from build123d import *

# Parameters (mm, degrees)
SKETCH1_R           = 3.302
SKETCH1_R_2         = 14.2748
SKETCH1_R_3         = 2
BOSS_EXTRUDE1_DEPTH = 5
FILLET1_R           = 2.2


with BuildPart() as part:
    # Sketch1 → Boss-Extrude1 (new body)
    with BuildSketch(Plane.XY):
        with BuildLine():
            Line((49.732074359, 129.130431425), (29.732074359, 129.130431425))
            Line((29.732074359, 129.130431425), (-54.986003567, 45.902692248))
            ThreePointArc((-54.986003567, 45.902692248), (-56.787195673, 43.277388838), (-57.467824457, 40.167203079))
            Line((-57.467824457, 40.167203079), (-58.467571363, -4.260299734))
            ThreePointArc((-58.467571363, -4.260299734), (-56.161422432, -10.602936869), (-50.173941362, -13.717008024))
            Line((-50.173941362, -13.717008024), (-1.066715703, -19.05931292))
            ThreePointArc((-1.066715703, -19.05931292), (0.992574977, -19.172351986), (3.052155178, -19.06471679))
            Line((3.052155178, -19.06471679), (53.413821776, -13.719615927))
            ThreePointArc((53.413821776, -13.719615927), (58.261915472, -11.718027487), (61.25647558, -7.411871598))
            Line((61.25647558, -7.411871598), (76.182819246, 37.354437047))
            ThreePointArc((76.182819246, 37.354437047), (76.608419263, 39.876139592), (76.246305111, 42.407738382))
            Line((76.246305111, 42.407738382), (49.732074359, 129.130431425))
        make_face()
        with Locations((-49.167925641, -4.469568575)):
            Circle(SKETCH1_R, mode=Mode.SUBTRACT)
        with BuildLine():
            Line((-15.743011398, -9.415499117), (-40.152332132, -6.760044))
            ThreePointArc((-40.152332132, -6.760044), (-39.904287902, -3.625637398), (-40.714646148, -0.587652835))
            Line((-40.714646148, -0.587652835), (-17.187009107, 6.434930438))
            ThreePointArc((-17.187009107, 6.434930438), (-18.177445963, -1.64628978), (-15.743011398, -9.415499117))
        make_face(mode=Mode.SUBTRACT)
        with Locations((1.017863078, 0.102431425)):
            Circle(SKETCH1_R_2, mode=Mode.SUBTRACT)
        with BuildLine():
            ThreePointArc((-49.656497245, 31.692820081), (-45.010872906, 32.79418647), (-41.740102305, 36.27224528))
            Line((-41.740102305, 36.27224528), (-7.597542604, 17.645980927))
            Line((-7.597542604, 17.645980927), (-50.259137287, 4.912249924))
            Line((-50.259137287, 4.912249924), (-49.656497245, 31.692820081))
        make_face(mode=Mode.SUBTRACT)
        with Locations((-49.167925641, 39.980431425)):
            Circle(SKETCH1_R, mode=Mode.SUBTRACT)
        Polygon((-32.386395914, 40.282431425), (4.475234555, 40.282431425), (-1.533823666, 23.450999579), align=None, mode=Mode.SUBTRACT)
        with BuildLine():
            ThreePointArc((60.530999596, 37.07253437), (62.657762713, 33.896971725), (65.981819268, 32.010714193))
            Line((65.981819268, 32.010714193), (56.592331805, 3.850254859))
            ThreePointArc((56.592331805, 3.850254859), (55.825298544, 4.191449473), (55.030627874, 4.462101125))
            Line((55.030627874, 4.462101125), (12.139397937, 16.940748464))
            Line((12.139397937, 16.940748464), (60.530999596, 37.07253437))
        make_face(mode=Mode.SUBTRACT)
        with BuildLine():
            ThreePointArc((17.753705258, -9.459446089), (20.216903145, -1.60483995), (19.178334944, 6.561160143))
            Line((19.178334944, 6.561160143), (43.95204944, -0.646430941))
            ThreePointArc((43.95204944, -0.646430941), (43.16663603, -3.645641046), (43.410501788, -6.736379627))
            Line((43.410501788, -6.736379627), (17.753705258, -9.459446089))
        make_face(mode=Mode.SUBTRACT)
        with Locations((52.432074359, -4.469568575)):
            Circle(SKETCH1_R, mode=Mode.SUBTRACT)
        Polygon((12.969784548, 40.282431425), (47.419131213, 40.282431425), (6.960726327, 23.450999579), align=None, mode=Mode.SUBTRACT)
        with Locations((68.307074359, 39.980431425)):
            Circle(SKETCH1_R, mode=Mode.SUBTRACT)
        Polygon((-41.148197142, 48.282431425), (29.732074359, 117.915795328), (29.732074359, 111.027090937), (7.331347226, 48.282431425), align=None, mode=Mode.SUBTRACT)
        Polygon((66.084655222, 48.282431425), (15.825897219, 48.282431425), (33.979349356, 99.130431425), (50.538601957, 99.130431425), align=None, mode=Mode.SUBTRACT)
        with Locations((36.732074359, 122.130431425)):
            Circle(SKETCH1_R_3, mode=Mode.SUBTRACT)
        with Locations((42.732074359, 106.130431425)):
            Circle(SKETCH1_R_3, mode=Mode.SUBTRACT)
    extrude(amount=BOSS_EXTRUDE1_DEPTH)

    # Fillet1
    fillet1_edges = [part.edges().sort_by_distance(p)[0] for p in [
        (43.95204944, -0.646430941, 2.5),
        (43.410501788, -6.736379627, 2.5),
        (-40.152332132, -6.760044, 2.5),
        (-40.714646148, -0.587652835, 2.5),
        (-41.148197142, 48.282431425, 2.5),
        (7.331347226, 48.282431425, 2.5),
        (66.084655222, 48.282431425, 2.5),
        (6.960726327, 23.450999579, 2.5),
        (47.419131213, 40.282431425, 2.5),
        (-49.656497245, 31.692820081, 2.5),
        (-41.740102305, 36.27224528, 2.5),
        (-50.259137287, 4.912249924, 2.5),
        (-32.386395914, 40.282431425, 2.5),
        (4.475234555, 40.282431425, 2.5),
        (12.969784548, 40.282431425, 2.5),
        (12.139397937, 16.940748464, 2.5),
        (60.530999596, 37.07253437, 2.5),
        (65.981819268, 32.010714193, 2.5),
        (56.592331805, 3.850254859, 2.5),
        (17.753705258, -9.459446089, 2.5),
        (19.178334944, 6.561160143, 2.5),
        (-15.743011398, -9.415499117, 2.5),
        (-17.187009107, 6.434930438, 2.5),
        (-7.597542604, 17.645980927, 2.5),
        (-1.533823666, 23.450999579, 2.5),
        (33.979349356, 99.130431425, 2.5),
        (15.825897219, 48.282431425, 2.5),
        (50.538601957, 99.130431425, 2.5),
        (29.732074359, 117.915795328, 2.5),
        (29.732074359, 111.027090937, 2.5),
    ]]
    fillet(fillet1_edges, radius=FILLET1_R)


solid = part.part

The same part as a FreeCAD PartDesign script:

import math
import FreeCAD as App
import Part
import Sketcher
Q = App.Units.Quantity


def edges_at(feature, points):
    """Names of the edges that pass closest to the given points."""
    edges = feature.Shape.Edges
    near = lambda p: min(range(len(edges)), key=lambda i: edges[i].distToShape(Part.Vertex(*p))[0])
    return sorted({f"Edge{near(p) + 1}" for p in points})

doc = App.newDocument("Part")
body = doc.addObject("PartDesign::Body", "Body")

sketch1 = body.newObject("Sketcher::SketchObject", "Sketch")
sketch1.AttachmentSupport = (doc.getObject("XY_Plane"), [""])
sketch1.MapMode = "FlatFace"
sketch1.addGeometry(Part.LineSegment(App.Vector(49.732074, 129.130431, 0), App.Vector(29.732074, 129.130431, 0)), False)
sketch1.addGeometry(Part.LineSegment(App.Vector(29.732074, 129.130431, 0), App.Vector(-54.986004, 45.902692, 0)), False)
sketch1.addGeometry(Part.ArcOfCircle(Part.Circle(App.Vector(-49.167926, 39.980431, 0), App.Vector(0, 0, 1), 8.302), math.radians(134.491575), math.radians(178.710897)), False)
sketch1.addGeometry(Part.LineSegment(App.Vector(-57.467824, 40.167203, 0), App.Vector(-58.467571, -4.2603, 0)), False)
sketch1.addGeometry(Part.ArcOfCircle(Part.Circle(App.Vector(-49.167926, -4.469569, 0), App.Vector(0, 0, 1), 9.302), math.radians(178.710897), math.radians(263.79129)), False)
sketch1.addGeometry(Part.LineSegment(App.Vector(-50.173941, -13.717008, 0), App.Vector(-1.066716, -19.059313, 0)), False)
sketch1.addGeometry(Part.ArcOfCircle(Part.Circle(App.Vector(1.017863, 0.102431, 0), App.Vector(0, 0, 1), 19.2748), math.radians(-96.20871), math.radians(-83.941632)), False)
sketch1.addGeometry(Part.LineSegment(App.Vector(3.052155, -19.064717, 0), App.Vector(53.413822, -13.719616, 0)), False)
sketch1.addGeometry(Part.ArcOfCircle(Part.Circle(App.Vector(52.432074, -4.469569, 0), App.Vector(0, 0, 1), 9.302), math.radians(-83.941632), math.radians(-18.439834)), False)
sketch1.addGeometry(Part.LineSegment(App.Vector(61.256476, -7.411872, 0), App.Vector(76.182819, 37.354437, 0)), False)
sketch1.addGeometry(Part.ArcOfCircle(Part.Circle(App.Vector(68.307074, 39.980431, 0), App.Vector(0, 0, 1), 8.302), math.radians(-18.439834), math.radians(17.000267)), False)
sketch1.addGeometry(Part.LineSegment(App.Vector(76.246305, 42.407738, 0), App.Vector(49.732074, 129.130431, 0)), False)
sketch1.addGeometry(Part.Circle(App.Vector(-49.167926, -4.469569, 0), App.Vector(0, 0, 1), 3.302), False)
sketch1.addGeometry(Part.ArcOfCircle(Part.Circle(App.Vector(1.017863, 0.102431, 0), App.Vector(0, 0, 1), 19.2748), math.radians(160.819954), math.radians(209.590769)), False)
sketch1.addGeometry(Part.LineSegment(App.Vector(-15.743011, -9.415499, 0), App.Vector(-40.152332, -6.760044, 0)), False)
sketch1.addGeometry(Part.ArcOfCircle(Part.Circle(App.Vector(-49.167926, -4.469569, 0), App.Vector(0, 0, 1), 9.302), math.radians(-14.254814), math.radians(24.665538)), False)
sketch1.addGeometry(Part.LineSegment(App.Vector(-40.714646, -0.587653, 0), App.Vector(-17.187009, 6.43493, 0)), False)
sketch1.addGeometry(Part.Circle(App.Vector(1.017863, 0.102431, 0), App.Vector(0, 0, 1), 14.2748), False)
sketch1.addGeometry(Part.LineSegment(App.Vector(-50.259137, 4.91225, 0), App.Vector(-49.656497, 31.69282, 0)), False)
sketch1.addGeometry(Part.ArcOfCircle(Part.Circle(App.Vector(-49.167926, 39.980431, 0), App.Vector(0, 0, 1), 8.302), math.radians(-93.373798), math.radians(-26.529708)), False)
sketch1.addGeometry(Part.LineSegment(App.Vector(-41.740102, 36.272245, 0), App.Vector(-7.597543, 17.645981, 0)), False)
sketch1.addGeometry(Part.LineSegment(App.Vector(-7.597543, 17.645981, 0), App.Vector(-50.259137, 4.91225, 0)), False)
sketch1.addGeometry(Part.Circle(App.Vector(-49.167926, 39.980431, 0), App.Vector(0, 0, 1), 3.302), False)
sketch1.addGeometry(Part.LineSegment(App.Vector(-1.533824, 23.451, 0), App.Vector(-32.386396, 40.282431, 0)), False)
sketch1.addGeometry(Part.LineSegment(App.Vector(-32.386396, 40.282431, 0), App.Vector(4.475235, 40.282431, 0)), False)
sketch1.addGeometry(Part.LineSegment(App.Vector(4.475235, 40.282431, 0), App.Vector(-1.533824, 23.451, 0)), False)
sketch1.addGeometry(Part.LineSegment(App.Vector(43.410502, -6.73638, 0), App.Vector(17.753705, -9.459446, 0)), False)
sketch1.addGeometry(Part.ArcOfCircle(Part.Circle(App.Vector(1.017863, 0.102431, 0), App.Vector(0, 0, 1), 19.2748), math.radians(-29.741111), math.radians(19.577809)), False)
sketch1.addGeometry(Part.LineSegment(App.Vector(19.178335, 6.56116, 0), App.Vector(43.952049, -0.646431, 0)), False)
sketch1.addGeometry(Part.ArcOfCircle(Part.Circle(App.Vector(52.432074, -4.469569, 0), App.Vector(0, 0, 1), 9.302), math.radians(155.732226), math.radians(194.104472)), False)
sketch1.addGeometry(Part.Circle(App.Vector(52.432074, -4.469569, 0), App.Vector(0, 0, 1), 3.302), False)
sketch1.addGeometry(Part.LineSegment(App.Vector(12.139398, 16.940748, 0), App.Vector(60.531, 37.072534, 0)), False)
sketch1.addGeometry(Part.ArcOfCircle(Part.Circle(App.Vector(68.307074, 39.980431, 0), App.Vector(0, 0, 1), 8.302), math.radians(-159.496497), math.radians(-106.265202)), False)
sketch1.addGeometry(Part.LineSegment(App.Vector(65.981819, 32.010714, 0), App.Vector(56.592332, 3.850255, 0)), False)
sketch1.addGeometry(Part.ArcOfCircle(Part.Circle(App.Vector(52.432074, -4.469569, 0), App.Vector(0, 0, 1), 9.302), math.radians(63.433044), math.radians(73.77833)), False)
sketch1.addGeometry(Part.LineSegment(App.Vector(55.030628, 4.462101, 0), App.Vector(12.139398, 16.940748, 0)), False)
sketch1.addGeometry(Part.LineSegment(App.Vector(6.960726, 23.451, 0), App.Vector(12.969785, 40.282431, 0)), False)
sketch1.addGeometry(Part.LineSegment(App.Vector(12.969785, 40.282431, 0), App.Vector(47.419131, 40.282431, 0)), False)
sketch1.addGeometry(Part.LineSegment(App.Vector(47.419131, 40.282431, 0), App.Vector(6.960726, 23.451, 0)), False)
sketch1.addGeometry(Part.Circle(App.Vector(68.307074, 39.980431, 0), App.Vector(0, 0, 1), 3.302), False)
sketch1.addGeometry(Part.LineSegment(App.Vector(7.331347, 48.282431, 0), App.Vector(-41.148197, 48.282431, 0)), False)
sketch1.addGeometry(Part.LineSegment(App.Vector(-41.148197, 48.282431, 0), App.Vector(29.732074, 117.915795, 0)), False)
sketch1.addGeometry(Part.LineSegment(App.Vector(29.732074, 117.915795, 0), App.Vector(29.732074, 111.027091, 0)), False)
sketch1.addGeometry(Part.LineSegment(App.Vector(29.732074, 111.027091, 0), App.Vector(7.331347, 48.282431, 0)), False)
sketch1.addGeometry(Part.LineSegment(App.Vector(50.538602, 99.130431, 0), App.Vector(66.084655, 48.282431, 0)), False)
sketch1.addGeometry(Part.LineSegment(App.Vector(66.084655, 48.282431, 0), App.Vector(15.825897, 48.282431, 0)), False)
sketch1.addGeometry(Part.LineSegment(App.Vector(15.825897, 48.282431, 0), App.Vector(33.979349, 99.130431, 0)), False)
sketch1.addGeometry(Part.LineSegment(App.Vector(33.979349, 99.130431, 0), App.Vector(50.538602, 99.130431, 0)), False)
sketch1.addGeometry(Part.Circle(App.Vector(36.732074, 122.130431, 0), App.Vector(0, 0, 1), 2), False)
sketch1.addGeometry(Part.Circle(App.Vector(42.732074, 106.130431, 0), App.Vector(0, 0, 1), 2), False)
sketch1.addConstraint(Sketcher.Constraint("Coincident", 0, 2, 1, 1))
sketch1.addConstraint(Sketcher.Constraint("Tangent", 1, 2, 2, 1))
sketch1.addConstraint(Sketcher.Constraint("Tangent", 2, 2, 3, 1))
sketch1.addConstraint(Sketcher.Constraint("Tangent", 3, 2, 4, 1))
sketch1.addConstraint(Sketcher.Constraint("Tangent", 4, 2, 5, 1))
sketch1.addConstraint(Sketcher.Constraint("Tangent", 5, 2, 6, 1))
sketch1.addConstraint(Sketcher.Constraint("Tangent", 6, 2, 7, 1))
sketch1.addConstraint(Sketcher.Constraint("Tangent", 7, 2, 8, 1))
sketch1.addConstraint(Sketcher.Constraint("Tangent", 8, 2, 9, 1))
sketch1.addConstraint(Sketcher.Constraint("Tangent", 9, 2, 10, 1))
sketch1.addConstraint(Sketcher.Constraint("Tangent", 10, 2, 11, 1))
sketch1.addConstraint(Sketcher.Constraint("Coincident", 11, 2, 0, 1))
sketch1.addConstraint(Sketcher.Constraint("Coincident", 13, 2, 14, 1))
sketch1.addConstraint(Sketcher.Constraint("Coincident", 14, 2, 15, 1))
sketch1.addConstraint(Sketcher.Constraint("Coincident", 15, 2, 16, 1))
sketch1.addConstraint(Sketcher.Constraint("Coincident", 16, 2, 13, 1))
sketch1.addConstraint(Sketcher.Constraint("Coincident", 18, 2, 19, 1))
sketch1.addConstraint(Sketcher.Constraint("Coincident", 19, 2, 20, 1))
sketch1.addConstraint(Sketcher.Constraint("Coincident", 20, 2, 21, 1))
sketch1.addConstraint(Sketcher.Constraint("Coincident", 21, 2, 18, 1))
sketch1.addConstraint(Sketcher.Constraint("Coincident", 23, 2, 24, 1))
sketch1.addConstraint(Sketcher.Constraint("Coincident", 24, 2, 25, 1))
sketch1.addConstraint(Sketcher.Constraint("Coincident", 25, 2, 23, 1))
sketch1.addConstraint(Sketcher.Constraint("Coincident", 26, 2, 27, 1))
sketch1.addConstraint(Sketcher.Constraint("Coincident", 27, 2, 28, 1))
sketch1.addConstraint(Sketcher.Constraint("Coincident", 28, 2, 29, 1))
sketch1.addConstraint(Sketcher.Constraint("Coincident", 29, 2, 26, 1))
sketch1.addConstraint(Sketcher.Constraint("Coincident", 31, 2, 32, 1))
sketch1.addConstraint(Sketcher.Constraint("Coincident", 32, 2, 33, 1))
sketch1.addConstraint(Sketcher.Constraint("Coincident", 33, 2, 34, 1))
sketch1.addConstraint(Sketcher.Constraint("Tangent", 34, 2, 35, 1))
sketch1.addConstraint(Sketcher.Constraint("Coincident", 35, 2, 31, 1))
sketch1.addConstraint(Sketcher.Constraint("Coincident", 36, 2, 37, 1))
sketch1.addConstraint(Sketcher.Constraint("Coincident", 37, 2, 38, 1))
sketch1.addConstraint(Sketcher.Constraint("Coincident", 38, 2, 36, 1))
sketch1.addConstraint(Sketcher.Constraint("Coincident", 40, 2, 41, 1))
sketch1.addConstraint(Sketcher.Constraint("Coincident", 41, 2, 42, 1))
sketch1.addConstraint(Sketcher.Constraint("Coincident", 42, 2, 43, 1))
sketch1.addConstraint(Sketcher.Constraint("Coincident", 43, 2, 40, 1))
sketch1.addConstraint(Sketcher.Constraint("Coincident", 44, 2, 45, 1))
sketch1.addConstraint(Sketcher.Constraint("Coincident", 45, 2, 46, 1))
sketch1.addConstraint(Sketcher.Constraint("Coincident", 46, 2, 47, 1))
sketch1.addConstraint(Sketcher.Constraint("Coincident", 47, 2, 44, 1))
sketch1.addConstraint(Sketcher.Constraint("Horizontal", 0))
sketch1.addConstraint(Sketcher.Constraint("Horizontal", 24))
sketch1.addConstraint(Sketcher.Constraint("Horizontal", 37))
sketch1.addConstraint(Sketcher.Constraint("Horizontal", 40))
sketch1.addConstraint(Sketcher.Constraint("Vertical", 42))
sketch1.addConstraint(Sketcher.Constraint("Horizontal", 45))
sketch1.addConstraint(Sketcher.Constraint("Horizontal", 47))
sketch1.addConstraint(Sketcher.Constraint("Coincident", 12, 3, 4, 3))
sketch1.addConstraint(Sketcher.Constraint("Coincident", 13, 3, 6, 3))
sketch1.addConstraint(Sketcher.Constraint("Coincident", 15, 3, 4, 3))
sketch1.addConstraint(Sketcher.Constraint("Coincident", 17, 3, 6, 3))
sketch1.addConstraint(Sketcher.Constraint("Coincident", 19, 3, 2, 3))
sketch1.addConstraint(Sketcher.Constraint("Coincident", 22, 3, 2, 3))
sketch1.addConstraint(Sketcher.Constraint("Coincident", 27, 3, 6, 3))
sketch1.addConstraint(Sketcher.Constraint("Coincident", 29, 3, 8, 3))
sketch1.addConstraint(Sketcher.Constraint("Coincident", 30, 3, 8, 3))
sketch1.addConstraint(Sketcher.Constraint("Coincident", 32, 3, 10, 3))
sketch1.addConstraint(Sketcher.Constraint("Coincident", 34, 3, 8, 3))
sketch1.addConstraint(Sketcher.Constraint("Coincident", 39, 3, 10, 3))
sketch1.addConstraint(Sketcher.Constraint("Equal", 4, 8))
sketch1.addConstraint(Sketcher.Constraint("Equal", 2, 10))
sketch1.addConstraint(Sketcher.Constraint("Equal", 6, 13))
sketch1.addConstraint(Sketcher.Constraint("Equal", 8, 15))
sketch1.addConstraint(Sketcher.Constraint("Equal", 10, 19))
sketch1.addConstraint(Sketcher.Constraint("Equal", 12, 22))
sketch1.addConstraint(Sketcher.Constraint("Equal", 13, 27))
sketch1.addConstraint(Sketcher.Constraint("Equal", 15, 29))
sketch1.addConstraint(Sketcher.Constraint("Equal", 22, 30))
sketch1.addConstraint(Sketcher.Constraint("Equal", 19, 32))
sketch1.addConstraint(Sketcher.Constraint("Equal", 29, 34))
sketch1.addConstraint(Sketcher.Constraint("Equal", 30, 39))
sketch1.addConstraint(Sketcher.Constraint("Equal", 48, 49))
sketch1.addConstraint(Sketcher.Constraint("Parallel", 5, 14))
sketch1.addConstraint(Sketcher.Constraint("Parallel", 3, 18))
sketch1.addConstraint(Sketcher.Constraint("Parallel", 16, 21))
sketch1.addConstraint(Sketcher.Constraint("Parallel", 20, 23))
sketch1.addConstraint(Sketcher.Constraint("Parallel", 7, 26))
sketch1.addConstraint(Sketcher.Constraint("Parallel", 9, 33))
sketch1.addConstraint(Sketcher.Constraint("Parallel", 28, 35))
sketch1.addConstraint(Sketcher.Constraint("Parallel", 25, 36))
sketch1.addConstraint(Sketcher.Constraint("Parallel", 31, 38))
sketch1.addConstraint(Sketcher.Constraint("Parallel", 1, 41))
sketch1.addConstraint(Sketcher.Constraint("Parallel", 36, 43))
sketch1.addConstraint(Sketcher.Constraint("Parallel", 11, 44))
sketch1.addConstraint(Sketcher.Constraint("Parallel", 43, 46))
sketch1.addConstraint(Sketcher.Constraint("Horizontal", 4, 3, 8, 3))
sketch1.addConstraint(Sketcher.Constraint("Horizontal", 2, 3, 10, 3))
sketch1.addConstraint(Sketcher.Constraint("Horizontal", 24, 2, 36, 2))
sketch1.addConstraint(Sketcher.Constraint("Horizontal", 25, 2, 38, 2))
sketch1.addConstraint(Sketcher.Constraint("Horizontal", 43, 2, 44, 2))
sketch1.addConstraint(Sketcher.Constraint("Vertical", 2, 3, 4, 3))
sketch1.addConstraint(Sketcher.Constraint("Vertical", 0, 2, 41, 2))
sketch1.addConstraint(Sketcher.Constraint("Equal", 14, 16))
sketch1.addConstraint(Sketcher.Constraint("Equal", 26, 28))
sketch1.addConstraint(Sketcher.Constraint("Diameter", 48, Q("4 mm")))
sketch1.addConstraint(Sketcher.Constraint("DistanceX", 0, 2, 0, 1, Q("20 mm")))
sketch1.addConstraint(Sketcher.Constraint("Diameter", 12, Q("6.604 mm")))
sketch1.addConstraint(Sketcher.Constraint("Radius", 2, Q("8.302 mm")))
sketch1.addConstraint(Sketcher.Constraint("Radius", 4, Q("9.302 mm")))
sketch1.addConstraint(Sketcher.Constraint("Diameter", 17, Q("28.5496 mm")))
sketch1.addConstraint(Sketcher.Constraint("Radius", 6, Q("19.2748 mm")))
sketch1.addConstraint(Sketcher.Constraint("DistanceY", -1, 1, 25, 2, Q("23.451 mm")))
sketch1.addConstraint(Sketcher.Constraint("DistanceX", -1, 1, 31, 2, Q("60.531 mm")))
sketch1.addConstraint(Sketcher.Constraint("Distance", 1, Q("118.760302 mm")))
sketch1.addConstraint(Sketcher.Constraint("DistanceX", 24, 1, 24, 2, Q("36.86163 mm")))
sketch1.addConstraint(Sketcher.Constraint("DistanceX", 45, 2, 45, 1, Q("50.258758 mm")))
sketch1.addConstraint(Sketcher.Constraint("DistanceY", 3, 2, -1, 1, Q("4.2603 mm")))
sketch1.addConstraint(Sketcher.Constraint("DistanceY", 13, 2, -1, 1, Q("9.415499 mm")))
sketch1.addConstraint(Sketcher.Constraint("DistanceX", -1, 1, 29, 2, Q("43.410502 mm")))
sketch1.addConstraint(Sketcher.Constraint("DistanceY", -1, 1, 34, 2, Q("4.462101 mm")))
sketch1.addConstraint(Sketcher.Constraint("DistanceX", -1, 1, 47, 2, Q("50.538602 mm")))
sketch1.addConstraint(Sketcher.Constraint("Distance", 3, Q("44.43875 mm")))
sketch1.addConstraint(Sketcher.Constraint("Distance", 5, Q("49.396962 mm")))
sketch1.addConstraint(Sketcher.Constraint("Distance", 7, Q("50.644522 mm")))
sketch1.addConstraint(Sketcher.Constraint("Distance", 18, Q("26.78735 mm")))
sketch1.addConstraint(Sketcher.Constraint("Distance", 20, Q("38.892828 mm")))
sketch1.addConstraint(Sketcher.Constraint("Distance", 21, Q("44.521451 mm")))
sketch1.addConstraint(Sketcher.Constraint("Distance", 25, Q("17.87193 mm")))
sketch1.addConstraint(Sketcher.Constraint("Distance", 44, Q("53.17141 mm")))
sketch1.addConstraint(Sketcher.Constraint("Distance", 46, Q("53.99136 mm")))
sketch1.addConstraint(Sketcher.Constraint("DistanceX", 37, 1, 37, 2, Q("34.449347 mm")))
sketch1.addConstraint(Sketcher.Constraint("DistanceX", 40, 2, 40, 1, Q("48.479544 mm")))
sketch1.addConstraint(Sketcher.Constraint("DistanceX", 47, 1, 47, 2, Q("16.559253 mm")))
sketch1.addConstraint(Sketcher.Constraint("DistanceY", 42, 2, 42, 1, Q("6.888704 mm")))
sketch1.addConstraint(Sketcher.Constraint("DistanceY", -1, 1, 6, 3, Q("0.102431 mm")))
sketch1.addConstraint(Sketcher.Constraint("DistanceY", -1, 1, 48, 3, Q("122.130431 mm")))
sketch1.addConstraint(Sketcher.Constraint("DistanceY", -1, 1, 49, 3, Q("106.130431 mm")))
sketch1.addConstraint(Sketcher.Constraint("DistanceY", -1, 1, 0, 2, Q("129.130431 mm")))
sketch1.addConstraint(Sketcher.Constraint("DistanceX", 3, 2, -1, 1, Q("58.467571 mm")))
sketch1.addConstraint(Sketcher.Constraint("DistanceX", 16, 2, -1, 1, Q("17.187009 mm")))
sketch1.addConstraint(Sketcher.Constraint("DistanceX", -1, 1, 32, 2, Q("65.981819 mm")))
sketch1.addConstraint(Sketcher.Constraint("DistanceX", -1, 1, 37, 2, Q("47.419131 mm")))
sketch1.addConstraint(Sketcher.Constraint("DistanceY", -1, 1, 40, 2, Q("48.282431 mm")))
sketch1.addConstraint(Sketcher.Constraint("DistanceX", -1, 1, 48, 3, Q("36.732074 mm")))
sketch1.addConstraint(Sketcher.Constraint("DistanceX", -1, 1, 49, 3, Q("42.732074 mm")))
sketch1.addConstraint(Sketcher.Constraint("DistanceX", 23, 2, -1, 1, Q("32.386396 mm")))
pad1 = body.newObject("PartDesign::Pad", "Pad")
pad1.Profile = sketch1
pad1.Length = 5
doc.recompute()

fillet = body.newObject("PartDesign::Fillet", "Fillet")
fillet.Base = (pad1, edges_at(pad1, [
    (43.952, -0.646, 2.5),
    (43.411, -6.736, 2.5),
    (-40.152, -6.76, 2.5),
    (-40.715, -0.588, 2.5),
    (-41.148, 48.282, 2.5),
    (7.331, 48.282, 2.5),
    (66.085, 48.282, 2.5),
    (6.961, 23.451, 2.5),
    (47.419, 40.282, 2.5),
    (-49.656, 31.693, 2.5),
    (-41.74, 36.272, 2.5),
    (-50.259, 4.912, 2.5),
    (-32.386, 40.282, 2.5),
    (4.475, 40.282, 2.5),
    (12.97, 40.282, 2.5),
    (12.139, 16.941, 2.5),
    (60.531, 37.073, 2.5),
    (65.982, 32.011, 2.5),
    (56.592, 3.85, 2.5),
    (17.754, -9.459, 2.5),
    (19.178, 6.561, 2.5),
    (-15.743, -9.415, 2.5),
    (-17.187, 6.435, 2.5),
    (-7.598, 17.646, 2.5),
    (-1.534, 23.451, 2.5),
    (33.979, 99.13, 2.5),
    (15.826, 48.282, 2.5),
    (50.539, 99.13, 2.5),
    (29.732, 117.916, 2.5),
    (29.732, 111.027, 2.5),
]))
fillet.Radius = 2.2

doc.recompute()
